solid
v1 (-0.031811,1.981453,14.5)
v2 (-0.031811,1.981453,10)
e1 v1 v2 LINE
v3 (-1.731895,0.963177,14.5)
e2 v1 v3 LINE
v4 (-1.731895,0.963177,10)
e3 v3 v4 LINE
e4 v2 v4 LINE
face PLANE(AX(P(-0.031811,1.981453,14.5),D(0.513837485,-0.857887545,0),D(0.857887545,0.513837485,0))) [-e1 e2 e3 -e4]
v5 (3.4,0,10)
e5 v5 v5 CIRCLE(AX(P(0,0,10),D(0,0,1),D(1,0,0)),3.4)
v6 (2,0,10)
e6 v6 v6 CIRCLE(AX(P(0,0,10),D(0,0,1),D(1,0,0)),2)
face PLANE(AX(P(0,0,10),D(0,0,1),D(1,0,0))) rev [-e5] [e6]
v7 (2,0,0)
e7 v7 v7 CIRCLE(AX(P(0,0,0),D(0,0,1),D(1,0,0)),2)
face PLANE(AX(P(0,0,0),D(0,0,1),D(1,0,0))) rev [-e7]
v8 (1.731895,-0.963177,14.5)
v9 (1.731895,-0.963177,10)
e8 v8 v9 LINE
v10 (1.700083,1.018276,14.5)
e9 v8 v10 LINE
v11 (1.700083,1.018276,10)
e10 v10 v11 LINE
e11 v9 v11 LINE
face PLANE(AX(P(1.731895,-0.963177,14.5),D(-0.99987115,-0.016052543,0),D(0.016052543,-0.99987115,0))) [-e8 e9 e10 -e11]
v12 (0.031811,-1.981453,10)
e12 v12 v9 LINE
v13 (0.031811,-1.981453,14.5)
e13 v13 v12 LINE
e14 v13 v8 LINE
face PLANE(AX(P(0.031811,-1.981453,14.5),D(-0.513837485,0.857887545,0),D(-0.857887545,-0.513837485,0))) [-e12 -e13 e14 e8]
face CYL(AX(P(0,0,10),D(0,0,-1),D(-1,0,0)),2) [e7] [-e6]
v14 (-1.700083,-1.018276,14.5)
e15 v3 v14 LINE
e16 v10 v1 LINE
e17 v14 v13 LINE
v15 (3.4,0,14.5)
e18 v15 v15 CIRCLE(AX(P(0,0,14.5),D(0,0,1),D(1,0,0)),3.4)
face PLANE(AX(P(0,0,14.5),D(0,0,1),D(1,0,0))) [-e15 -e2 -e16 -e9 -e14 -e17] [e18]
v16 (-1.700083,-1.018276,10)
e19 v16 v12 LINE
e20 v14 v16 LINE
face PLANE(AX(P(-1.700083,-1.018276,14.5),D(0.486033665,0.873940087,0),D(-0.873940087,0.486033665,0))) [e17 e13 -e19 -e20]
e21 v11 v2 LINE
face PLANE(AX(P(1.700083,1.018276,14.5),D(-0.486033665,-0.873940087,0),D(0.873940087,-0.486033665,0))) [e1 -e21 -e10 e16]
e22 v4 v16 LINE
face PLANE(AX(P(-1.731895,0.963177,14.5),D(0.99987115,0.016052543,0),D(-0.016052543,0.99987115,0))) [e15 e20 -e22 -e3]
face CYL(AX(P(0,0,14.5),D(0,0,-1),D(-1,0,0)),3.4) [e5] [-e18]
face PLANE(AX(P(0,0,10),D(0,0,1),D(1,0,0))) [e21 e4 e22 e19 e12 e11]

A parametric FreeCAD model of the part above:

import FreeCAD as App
import Part
import Sketcher

V = App.Vector

doc = App.newDocument("Part")
body = doc.addObject("PartDesign::Body", "Body")

# Sketch on XY plane
sketch1 = body.newObject("Sketcher::SketchObject", "Sketch")
sketch1.AttachmentSupport = (doc.getObject("XY_Plane"), [""])
sketch1.MapMode = "FlatFace"
sketch1.addGeometry(Part.Circle(V(0, 0, 0), V(0, 0, 1), 2), False)
sketch1.addConstraint(Sketcher.Constraint("Coincident", 0, 3, -1, 1))
sketch1.addConstraint(Sketcher.Constraint("Diameter", 0, 4.0))
pad1 = body.newObject("PartDesign::Pad", "Pad")
pad1.Profile = sketch1
pad1.Length = 10

# Sketch on XY plane
sketch2 = body.newObject("Sketcher::SketchObject", "Sketch001")
sketch2.AttachmentSupport = (doc.getObject("XY_Plane"), [""])
sketch2.MapMode = "FlatFace"
sketch2.AttachmentOffset = App.Placement(V(0, 0, 10), App.Rotation())
sketch2.addGeometry(Part.Circle(V(0, 0, 0), V(0, 0, 1), 3.4), False)
sketch2.addGeometry(Part.LineSegment(V(-1.7, 1, 0), V(0, 2, 0)), False)
sketch2.addGeometry(Part.LineSegment(V(0, 2, 0), V(1.7, 1, 0)), False)
sketch2.addGeometry(Part.LineSegment(V(1.7, 1, 0), V(1.7, -1, 0)), False)
sketch2.addGeometry(Part.LineSegment(V(1.7, -1, 0), V(0, -2, 0)), False)
sketch2.addGeometry(Part.LineSegment(V(0, -2, 0), V(-1.7, -1, 0)), False)
sketch2.addGeometry(Part.LineSegment(V(-1.7, -1, 0), V(-1.7, 1, 0)), False)
sketch2.addConstraint(Sketcher.Constraint("Coincident", 1, 2, 2, 1))
sketch2.addConstraint(Sketcher.Constraint("Coincident", 2, 2, 3, 1))
sketch2.addConstraint(Sketcher.Constraint("Coincident", 3, 2, 4, 1))
sketch2.addConstraint(Sketcher.Constraint("Coincident", 4, 2, 5, 1))
sketch2.addConstraint(Sketcher.Constraint("Coincident", 5, 2, 6, 1))
sketch2.addConstraint(Sketcher.Constraint("Coincident", 6, 2, 1, 1))
sketch2.addConstraint(Sketcher.Constraint("Coincident", 0, 3, -1, 1))
sketch2.addConstraint(Sketcher.Constraint("Symmetric", 1, 2, 4, 2, -1, 1))
sketch2.addConstraint(Sketcher.Constraint("Symmetric", 2, 2, 5, 2, -1, 1))
sketch2.addConstraint(Sketcher.Constraint("Symmetric", 3, 2, 6, 2, -1, 1))
sketch2.addConstraint(Sketcher.Constraint("Equal", 1, 2))
sketch2.addConstraint(Sketcher.Constraint("Equal", 2, 3))
sketch2.addConstraint(Sketcher.Constraint("Diameter", 0, 6.8))
sketch2.addConstraint(Sketcher.Constraint("DistanceY", 5, 2, 3, 2, 0.055099))
sketch2.addConstraint(Sketcher.Constraint("Distance", 1, 1.981709))
sketch2.addConstraint(Sketcher.Constraint("DistanceX", 1, 2, -1, 1, 0.031811))
sketch2.addConstraint(Sketcher.Constraint("DistanceX", 2, 2, 3, 2, 0.031811))
pad2 = body.newObject("PartDesign::Pad", "Pad001")
pad2.Profile = sketch2
pad2.Length = 4.5

doc.recompute()
